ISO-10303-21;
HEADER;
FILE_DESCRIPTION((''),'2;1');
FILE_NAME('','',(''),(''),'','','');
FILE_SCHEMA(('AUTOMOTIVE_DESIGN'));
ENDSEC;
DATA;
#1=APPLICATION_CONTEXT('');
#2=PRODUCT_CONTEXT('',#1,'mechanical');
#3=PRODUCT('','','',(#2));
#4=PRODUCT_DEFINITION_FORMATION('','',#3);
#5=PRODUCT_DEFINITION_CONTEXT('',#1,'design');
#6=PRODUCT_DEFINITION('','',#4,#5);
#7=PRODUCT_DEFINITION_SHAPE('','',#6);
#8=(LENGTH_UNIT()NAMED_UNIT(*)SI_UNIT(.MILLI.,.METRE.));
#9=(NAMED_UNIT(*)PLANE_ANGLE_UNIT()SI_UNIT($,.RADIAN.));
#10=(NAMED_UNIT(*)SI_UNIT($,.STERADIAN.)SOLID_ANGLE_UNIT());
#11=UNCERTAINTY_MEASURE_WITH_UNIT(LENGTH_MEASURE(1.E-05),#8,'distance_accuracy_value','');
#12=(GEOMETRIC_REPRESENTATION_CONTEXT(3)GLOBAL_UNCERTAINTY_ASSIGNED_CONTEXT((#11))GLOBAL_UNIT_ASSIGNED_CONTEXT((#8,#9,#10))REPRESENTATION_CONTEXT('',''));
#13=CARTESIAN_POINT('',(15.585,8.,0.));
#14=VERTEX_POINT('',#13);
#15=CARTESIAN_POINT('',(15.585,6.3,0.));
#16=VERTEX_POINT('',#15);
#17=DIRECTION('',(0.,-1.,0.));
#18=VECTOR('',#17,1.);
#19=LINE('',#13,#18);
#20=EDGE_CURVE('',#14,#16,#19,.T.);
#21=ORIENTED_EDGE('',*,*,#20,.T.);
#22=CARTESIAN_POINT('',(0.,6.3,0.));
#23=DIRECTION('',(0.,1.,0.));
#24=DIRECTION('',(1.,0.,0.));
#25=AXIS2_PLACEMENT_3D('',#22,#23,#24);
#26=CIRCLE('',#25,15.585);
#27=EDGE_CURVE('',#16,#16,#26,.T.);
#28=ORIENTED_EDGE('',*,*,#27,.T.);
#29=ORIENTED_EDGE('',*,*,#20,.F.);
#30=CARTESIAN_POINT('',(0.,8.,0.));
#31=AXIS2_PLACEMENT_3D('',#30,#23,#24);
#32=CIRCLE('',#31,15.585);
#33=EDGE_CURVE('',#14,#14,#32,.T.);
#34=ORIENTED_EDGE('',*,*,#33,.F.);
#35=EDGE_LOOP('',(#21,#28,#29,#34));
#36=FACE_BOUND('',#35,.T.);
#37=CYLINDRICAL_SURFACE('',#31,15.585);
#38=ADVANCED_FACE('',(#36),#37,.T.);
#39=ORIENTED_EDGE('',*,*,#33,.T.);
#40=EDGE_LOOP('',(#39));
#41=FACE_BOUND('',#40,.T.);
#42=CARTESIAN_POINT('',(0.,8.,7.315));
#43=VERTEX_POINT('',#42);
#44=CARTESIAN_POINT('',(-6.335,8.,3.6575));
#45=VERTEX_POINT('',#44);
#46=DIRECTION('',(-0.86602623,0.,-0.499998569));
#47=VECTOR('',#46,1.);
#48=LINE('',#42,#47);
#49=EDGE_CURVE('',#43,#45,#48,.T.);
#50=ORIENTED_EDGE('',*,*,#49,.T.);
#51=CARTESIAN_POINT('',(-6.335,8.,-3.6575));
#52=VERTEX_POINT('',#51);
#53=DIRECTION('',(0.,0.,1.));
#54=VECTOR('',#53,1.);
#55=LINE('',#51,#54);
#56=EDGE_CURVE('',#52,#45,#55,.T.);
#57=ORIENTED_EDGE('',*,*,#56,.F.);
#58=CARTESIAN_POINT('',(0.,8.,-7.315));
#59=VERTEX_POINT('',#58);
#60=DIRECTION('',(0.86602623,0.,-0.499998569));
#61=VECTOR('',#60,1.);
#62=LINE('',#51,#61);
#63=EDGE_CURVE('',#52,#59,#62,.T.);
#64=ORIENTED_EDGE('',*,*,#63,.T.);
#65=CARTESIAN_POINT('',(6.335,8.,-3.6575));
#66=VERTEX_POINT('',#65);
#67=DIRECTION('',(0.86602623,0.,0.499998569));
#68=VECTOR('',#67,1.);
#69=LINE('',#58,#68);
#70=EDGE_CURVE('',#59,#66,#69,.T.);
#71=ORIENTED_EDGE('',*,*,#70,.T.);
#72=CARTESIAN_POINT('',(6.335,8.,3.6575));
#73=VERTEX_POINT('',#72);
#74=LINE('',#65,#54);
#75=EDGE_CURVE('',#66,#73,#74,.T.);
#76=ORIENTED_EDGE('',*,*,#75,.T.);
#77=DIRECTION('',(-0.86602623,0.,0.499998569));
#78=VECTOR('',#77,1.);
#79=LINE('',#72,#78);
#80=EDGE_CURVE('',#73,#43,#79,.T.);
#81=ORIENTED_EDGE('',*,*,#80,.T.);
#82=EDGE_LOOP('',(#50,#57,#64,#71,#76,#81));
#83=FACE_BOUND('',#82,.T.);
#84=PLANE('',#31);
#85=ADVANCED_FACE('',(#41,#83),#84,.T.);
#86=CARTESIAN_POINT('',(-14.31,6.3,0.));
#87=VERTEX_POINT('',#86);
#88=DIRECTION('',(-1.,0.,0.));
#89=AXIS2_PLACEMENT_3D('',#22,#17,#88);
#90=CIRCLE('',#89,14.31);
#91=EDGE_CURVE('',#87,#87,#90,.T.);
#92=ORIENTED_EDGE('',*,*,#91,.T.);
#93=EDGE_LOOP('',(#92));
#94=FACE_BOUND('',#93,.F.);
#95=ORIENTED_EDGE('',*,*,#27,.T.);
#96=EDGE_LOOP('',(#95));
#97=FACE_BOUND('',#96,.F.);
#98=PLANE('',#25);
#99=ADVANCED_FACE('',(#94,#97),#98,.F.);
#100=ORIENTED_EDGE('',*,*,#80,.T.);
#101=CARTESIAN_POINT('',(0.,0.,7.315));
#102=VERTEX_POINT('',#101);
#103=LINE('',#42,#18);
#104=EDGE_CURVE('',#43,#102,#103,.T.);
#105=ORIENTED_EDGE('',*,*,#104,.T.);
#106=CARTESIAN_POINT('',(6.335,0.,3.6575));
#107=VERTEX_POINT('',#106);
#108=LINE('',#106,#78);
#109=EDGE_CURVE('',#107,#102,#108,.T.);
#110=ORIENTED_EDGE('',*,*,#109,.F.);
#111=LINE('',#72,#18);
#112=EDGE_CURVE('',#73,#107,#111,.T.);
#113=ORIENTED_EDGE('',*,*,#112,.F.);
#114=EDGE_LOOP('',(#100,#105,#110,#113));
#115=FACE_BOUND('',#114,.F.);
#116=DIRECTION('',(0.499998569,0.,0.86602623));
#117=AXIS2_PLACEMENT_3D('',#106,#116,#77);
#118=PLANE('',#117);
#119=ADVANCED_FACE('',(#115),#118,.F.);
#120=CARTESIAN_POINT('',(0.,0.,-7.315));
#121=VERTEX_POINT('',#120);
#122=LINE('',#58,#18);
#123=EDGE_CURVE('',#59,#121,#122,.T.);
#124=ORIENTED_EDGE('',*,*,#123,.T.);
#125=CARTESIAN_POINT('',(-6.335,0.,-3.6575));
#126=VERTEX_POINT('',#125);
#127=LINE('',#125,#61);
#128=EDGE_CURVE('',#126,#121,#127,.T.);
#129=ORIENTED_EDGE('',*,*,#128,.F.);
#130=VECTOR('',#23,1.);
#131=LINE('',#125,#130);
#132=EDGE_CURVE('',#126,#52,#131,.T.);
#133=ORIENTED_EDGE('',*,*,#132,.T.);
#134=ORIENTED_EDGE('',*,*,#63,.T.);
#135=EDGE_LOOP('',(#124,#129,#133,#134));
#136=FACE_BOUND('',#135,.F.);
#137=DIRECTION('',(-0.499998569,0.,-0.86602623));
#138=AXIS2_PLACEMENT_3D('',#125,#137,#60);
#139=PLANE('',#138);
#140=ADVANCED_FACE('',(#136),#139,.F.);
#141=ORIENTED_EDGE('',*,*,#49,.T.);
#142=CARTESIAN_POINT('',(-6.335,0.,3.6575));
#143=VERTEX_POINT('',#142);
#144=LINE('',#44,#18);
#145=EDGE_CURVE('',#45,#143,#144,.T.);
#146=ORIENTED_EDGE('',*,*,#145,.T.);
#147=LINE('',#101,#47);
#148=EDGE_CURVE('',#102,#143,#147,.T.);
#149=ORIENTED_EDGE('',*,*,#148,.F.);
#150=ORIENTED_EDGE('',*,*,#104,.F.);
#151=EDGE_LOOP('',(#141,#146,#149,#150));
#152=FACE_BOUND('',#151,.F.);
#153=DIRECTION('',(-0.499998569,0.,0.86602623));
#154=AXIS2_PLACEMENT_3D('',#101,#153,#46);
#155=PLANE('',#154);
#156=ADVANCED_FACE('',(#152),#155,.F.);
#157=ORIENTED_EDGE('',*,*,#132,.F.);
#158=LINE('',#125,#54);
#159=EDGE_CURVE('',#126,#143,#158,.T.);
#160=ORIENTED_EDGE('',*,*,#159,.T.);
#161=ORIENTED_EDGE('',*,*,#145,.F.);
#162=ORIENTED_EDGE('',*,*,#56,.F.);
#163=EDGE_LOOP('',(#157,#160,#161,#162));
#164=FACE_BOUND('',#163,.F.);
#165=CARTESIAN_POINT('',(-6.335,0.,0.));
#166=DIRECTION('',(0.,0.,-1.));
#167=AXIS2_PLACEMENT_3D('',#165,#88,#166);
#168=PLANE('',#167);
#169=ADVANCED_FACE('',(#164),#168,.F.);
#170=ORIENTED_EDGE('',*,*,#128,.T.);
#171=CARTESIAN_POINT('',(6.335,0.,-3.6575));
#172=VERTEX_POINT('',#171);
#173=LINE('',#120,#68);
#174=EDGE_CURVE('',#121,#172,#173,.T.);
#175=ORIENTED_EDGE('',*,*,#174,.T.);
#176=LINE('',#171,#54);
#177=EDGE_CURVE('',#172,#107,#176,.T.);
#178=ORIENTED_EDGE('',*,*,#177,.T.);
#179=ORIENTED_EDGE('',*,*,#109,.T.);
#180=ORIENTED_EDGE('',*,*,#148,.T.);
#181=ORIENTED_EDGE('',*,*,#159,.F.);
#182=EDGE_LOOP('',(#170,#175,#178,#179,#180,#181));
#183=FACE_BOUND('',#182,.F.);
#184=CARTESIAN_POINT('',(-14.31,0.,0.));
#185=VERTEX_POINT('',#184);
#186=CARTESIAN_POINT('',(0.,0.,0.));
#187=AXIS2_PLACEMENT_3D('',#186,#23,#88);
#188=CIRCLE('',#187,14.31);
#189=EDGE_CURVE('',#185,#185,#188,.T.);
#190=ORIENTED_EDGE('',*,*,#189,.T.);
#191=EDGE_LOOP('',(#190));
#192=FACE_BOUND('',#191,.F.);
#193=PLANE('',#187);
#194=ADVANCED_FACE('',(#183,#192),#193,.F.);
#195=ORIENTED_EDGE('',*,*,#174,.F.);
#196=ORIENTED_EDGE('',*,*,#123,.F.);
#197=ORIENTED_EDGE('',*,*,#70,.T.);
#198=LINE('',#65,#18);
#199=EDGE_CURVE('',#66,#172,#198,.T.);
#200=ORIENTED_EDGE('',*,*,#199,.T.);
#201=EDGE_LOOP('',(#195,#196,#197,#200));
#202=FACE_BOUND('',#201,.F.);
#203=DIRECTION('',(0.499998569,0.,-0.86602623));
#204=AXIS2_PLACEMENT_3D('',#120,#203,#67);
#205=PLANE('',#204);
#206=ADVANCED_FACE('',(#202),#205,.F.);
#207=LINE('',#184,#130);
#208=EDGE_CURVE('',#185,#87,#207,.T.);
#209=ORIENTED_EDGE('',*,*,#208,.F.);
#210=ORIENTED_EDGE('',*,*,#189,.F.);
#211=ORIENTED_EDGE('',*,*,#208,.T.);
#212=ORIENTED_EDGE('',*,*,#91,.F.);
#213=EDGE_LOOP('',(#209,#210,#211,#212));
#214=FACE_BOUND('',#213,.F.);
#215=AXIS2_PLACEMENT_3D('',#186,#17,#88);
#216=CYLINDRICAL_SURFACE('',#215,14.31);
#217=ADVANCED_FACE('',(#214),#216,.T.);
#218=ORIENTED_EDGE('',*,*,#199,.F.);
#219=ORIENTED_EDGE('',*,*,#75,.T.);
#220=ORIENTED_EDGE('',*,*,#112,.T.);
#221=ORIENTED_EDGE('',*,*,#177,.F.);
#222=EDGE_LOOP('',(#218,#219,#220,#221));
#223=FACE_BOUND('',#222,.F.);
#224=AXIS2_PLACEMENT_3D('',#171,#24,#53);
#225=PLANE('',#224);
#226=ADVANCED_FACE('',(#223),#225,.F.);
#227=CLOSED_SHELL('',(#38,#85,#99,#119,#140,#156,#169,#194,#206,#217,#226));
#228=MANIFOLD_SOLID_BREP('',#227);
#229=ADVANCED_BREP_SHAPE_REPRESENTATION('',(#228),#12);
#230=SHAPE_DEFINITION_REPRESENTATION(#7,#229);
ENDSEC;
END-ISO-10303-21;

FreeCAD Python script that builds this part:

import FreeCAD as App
import Part
import Sketcher
from FreeCAD import Vector
Q = App.Units.Quantity


def add_polygon(sketch, points):
    """Adds a closed chain of lines whose ends are joined by coincident constraints."""
    first, n = sketch.GeometryCount, len(points)
    for a, b in zip(points, points[1:] + points[:1]):
        sketch.addGeometry(Part.LineSegment(App.Vector(*a, 0), App.Vector(*b, 0)), False)
    for i in range(n):
        sketch.addConstraint(Sketcher.Constraint("Coincident", first + i, 2, first + (i + 1) % n, 1))

doc = App.newDocument("Part")
body = doc.addObject("PartDesign::Body", "Body")

# Sketch on XZ plane
sketch1 = doc.addObject("Sketcher::SketchObject", "Sketch")
body.addObject(sketch1)
sketch1.AttachmentSupport = (doc.XZ_Plane, [""])
sketch1.MapMode = "FlatFace"
sketch1.addGeometry(Part.Circle(Vector(0, 0, 0), Vector(0, 0, 1), 14), False)  # 0
add_polygon(sketch1, [(-6, 4), (-6, -4), (0, -7), (6, -4), (6, 4), (0, 7)])  # lines 1-6
sketch1.addConstraint([
    Sketcher.Constraint("Vertical", 1),
    Sketcher.Constraint("Vertical", 4),
    Sketcher.Constraint("Coincident", 0, 3, -1, 1),
    Sketcher.Constraint("Symmetric", 1, 2, 4, 2, -1, 1),
    Sketcher.Constraint("Symmetric", 2, 2, 5, 2, -1, 1),
    Sketcher.Constraint("PointOnObject", 2, 2, -2),
    Sketcher.Constraint("Parallel", 3, 6),
    Sketcher.Constraint("Horizontal", 1, 2, 3, 2),
    Sketcher.Constraint("Diameter", 0, 28.62),
    Sketcher.Constraint("Angle", 2, Q("-30 deg")),
    Sketcher.Constraint("DistanceX", 1, 2, -1, 1, 6.335),
    Sketcher.Constraint("DistanceY", 1, 2, 1, 1, 7.315),
])
pad1 = doc.addObject("PartDesign::Pad", "Pad")
body.addObject(pad1)
pad1.Profile = sketch1
pad1.Length = 8
pad1.Reversed = True

# Sketch on XZ plane
sketch2 = doc.addObject("Sketcher::SketchObject", "Sketch001")
body.addObject(sketch2)
sketch2.AttachmentSupport = (doc.XZ_Plane, [""])
sketch2.MapMode = "FlatFace"
sketch2.AttachmentOffset = App.Placement(Vector(0, 0, -8), App.Rotation())
sketch2.addGeometry(Part.Circle(Vector(0, 0, 0), Vector(0, 0, 1), 16), False)  # 0
add_polygon(sketch2, [(0, 7), (-6, 4), (-6, -4), (0, -7), (6, -4), (6, 4)])  # lines 1-6
sketch2.addConstraint([
    Sketcher.Constraint("Vertical", 2),
    Sketcher.Constraint("Vertical", 5),
    Sketcher.Constraint("Coincident", 0, 3, -1, 1),
    Sketcher.Constraint("Symmetric", 1, 2, 4, 2, -1, 1),
    Sketcher.Constraint("Symmetric", 3, 2, 6, 2, -1, 1),
    Sketcher.Constraint("PointOnObject", 3, 2, -2),
    Sketcher.Constraint("Parallel", 3, 6),
    Sketcher.Constraint("Horizontal", 2, 2, 4, 2),
    Sketcher.Constraint("Diameter", 0, 31.17),
    Sketcher.Constraint("Angle", 1, Q("-150 deg")),
    Sketcher.Constraint("DistanceY", 2, 2, 2, 1, 7.315),
    Sketcher.Constraint("DistanceX", 2, 2, 4, 2, 12.67),
])
pad2 = doc.addObject("PartDesign::Pad", "Pad001")
body.addObject(pad2)
pad2.Profile = sketch2
pad2.Length = 1.7

doc.recompute()
